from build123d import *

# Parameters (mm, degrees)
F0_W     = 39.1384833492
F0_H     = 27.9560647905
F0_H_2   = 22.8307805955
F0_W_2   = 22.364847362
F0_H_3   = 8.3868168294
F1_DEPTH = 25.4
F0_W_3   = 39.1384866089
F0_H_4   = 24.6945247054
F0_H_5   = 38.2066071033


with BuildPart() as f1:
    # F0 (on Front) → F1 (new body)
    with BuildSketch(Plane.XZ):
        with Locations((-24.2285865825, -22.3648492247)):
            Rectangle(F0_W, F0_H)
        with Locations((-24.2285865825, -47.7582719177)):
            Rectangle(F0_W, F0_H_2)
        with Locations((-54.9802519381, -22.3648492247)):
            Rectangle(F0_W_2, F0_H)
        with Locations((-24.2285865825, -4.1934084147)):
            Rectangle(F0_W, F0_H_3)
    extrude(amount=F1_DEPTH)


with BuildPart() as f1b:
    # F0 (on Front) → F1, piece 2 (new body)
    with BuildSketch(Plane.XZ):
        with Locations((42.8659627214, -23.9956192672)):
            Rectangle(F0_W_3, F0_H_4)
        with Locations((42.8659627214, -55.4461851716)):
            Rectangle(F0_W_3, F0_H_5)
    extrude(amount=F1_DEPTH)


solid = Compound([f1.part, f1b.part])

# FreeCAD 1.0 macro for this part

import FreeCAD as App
import Part
import Sketcher
from FreeCAD import Vector
Q = App.Units.Quantity


def add_polygon(sketch, points):
    """Adds a closed chain of lines whose ends are joined by coincident constraints."""
    first, n = sketch.GeometryCount, len(points)
    for a, b in zip(points, points[1:] + points[:1]):
        sketch.addGeometry(Part.LineSegment(App.Vector(*a, 0), App.Vector(*b, 0)), False)
    for i in range(n):
        sketch.addConstraint(Sketcher.Constraint("Coincident", first + i, 2, first + (i + 1) % n, 1))

doc = App.newDocument("Part")
params = doc.addObject("Spreadsheet::Sheet", "Params")
for row, (alias, value) in enumerate([
    ("pad1_length", "1 in"),
    ("pad2_length", "1 in"),
], start=1):
    params.set(f"A{row}", alias)
    params.set(f"B{row}", "=" + value)
    params.setAlias(f"B{row}", alias)

body = doc.addObject("PartDesign::Body", "Body")

# Sketch on XZ plane
sketch1 = body.newObject("Sketcher::SketchObject", "Sketch")
sketch1.AttachmentSupport = (doc.getObject("XZ_Plane"), [""])
sketch1.MapMode = "FlatFace"
add_polygon(sketch1, [(-44, -36), (-44, -59), (-5, -59), (-5, 0), (-44, 0), (-44, -8), (-66, -8), (-66, -36)])  # lines 0-7
sketch1.addConstraint(Sketcher.Constraint("Vertical", 0))
sketch1.addConstraint(Sketcher.Constraint("Horizontal", 1))
sketch1.addConstraint(Sketcher.Constraint("Vertical", 2))
sketch1.addConstraint(Sketcher.Constraint("Horizontal", 3))
sketch1.addConstraint(Sketcher.Constraint("Vertical", 4))
sketch1.addConstraint(Sketcher.Constraint("Horizontal", 5))
sketch1.addConstraint(Sketcher.Constraint("Vertical", 6))
sketch1.addConstraint(Sketcher.Constraint("Horizontal", 7))
sketch1.addConstraint(Sketcher.Constraint("PointOnObject", 2, 2, -1))
sketch1.addConstraint(Sketcher.Constraint("Vertical", 0, 2, 3, 2))
sketch1.addConstraint(Sketcher.Constraint("DistanceY", 0, 2, 0, 1, Q("22.830781 mm")))
sketch1.addConstraint(Sketcher.Constraint("DistanceX", 1, 1, 1, 2, Q("39.138483 mm")))
sketch1.addConstraint(Sketcher.Constraint("DistanceX", 5, 2, 5, 1, Q("22.364847 mm")))
sketch1.addConstraint(Sketcher.Constraint("DistanceY", 2, 1, 2, 2, Q("59.173662 mm")))
sketch1.addConstraint(Sketcher.Constraint("DistanceY", 4, 2, 4, 1, Q("8.386817 mm")))
sketch1.addConstraint(Sketcher.Constraint("DistanceX", 0, 2, -1, 1, Q("43.797828 mm")))
pad1 = body.newObject("PartDesign::Pad", "Pad")
pad1.Profile = sketch1
pad1.setExpression("Length", "Params.pad1_length")
body2 = doc.addObject("PartDesign::Body", "Body001")

# Sketch on XZ plane
sketch2 = body2.newObject("Sketcher::SketchObject", "Sketch001")
sketch2.AttachmentSupport = (doc.getObject("XZ_Plane001"), [""])
sketch2.MapMode = "FlatFace"
add_polygon(sketch2, [(23, -12), (23, -75), (62, -75), (62, -12)])  # lines 0-3
sketch2.addConstraint(Sketcher.Constraint("Vertical", 0))
sketch2.addConstraint(Sketcher.Constraint("Horizontal", 1))
sketch2.addConstraint(Sketcher.Constraint("Vertical", 2))
sketch2.addConstraint(Sketcher.Constraint("Horizontal", 3))
sketch2.addConstraint(Sketcher.Constraint("DistanceY", 0, 2, 0, 1, Q("62.901132 mm")))
sketch2.addConstraint(Sketcher.Constraint("DistanceX", 1, 1, 1, 2, Q("39.138487 mm")))
sketch2.addConstraint(Sketcher.Constraint("DistanceX", -1, 1, 0, 2, Q("23.296719 mm")))
sketch2.addConstraint(Sketcher.Constraint("DistanceY", 0, 2, -1, 1, Q("74.549489 mm")))
pad2 = body2.newObject("PartDesign::Pad", "Pad001")
pad2.Profile = sketch2
pad2.setExpression("Length", "Params.pad2_length")

doc.recompute()
